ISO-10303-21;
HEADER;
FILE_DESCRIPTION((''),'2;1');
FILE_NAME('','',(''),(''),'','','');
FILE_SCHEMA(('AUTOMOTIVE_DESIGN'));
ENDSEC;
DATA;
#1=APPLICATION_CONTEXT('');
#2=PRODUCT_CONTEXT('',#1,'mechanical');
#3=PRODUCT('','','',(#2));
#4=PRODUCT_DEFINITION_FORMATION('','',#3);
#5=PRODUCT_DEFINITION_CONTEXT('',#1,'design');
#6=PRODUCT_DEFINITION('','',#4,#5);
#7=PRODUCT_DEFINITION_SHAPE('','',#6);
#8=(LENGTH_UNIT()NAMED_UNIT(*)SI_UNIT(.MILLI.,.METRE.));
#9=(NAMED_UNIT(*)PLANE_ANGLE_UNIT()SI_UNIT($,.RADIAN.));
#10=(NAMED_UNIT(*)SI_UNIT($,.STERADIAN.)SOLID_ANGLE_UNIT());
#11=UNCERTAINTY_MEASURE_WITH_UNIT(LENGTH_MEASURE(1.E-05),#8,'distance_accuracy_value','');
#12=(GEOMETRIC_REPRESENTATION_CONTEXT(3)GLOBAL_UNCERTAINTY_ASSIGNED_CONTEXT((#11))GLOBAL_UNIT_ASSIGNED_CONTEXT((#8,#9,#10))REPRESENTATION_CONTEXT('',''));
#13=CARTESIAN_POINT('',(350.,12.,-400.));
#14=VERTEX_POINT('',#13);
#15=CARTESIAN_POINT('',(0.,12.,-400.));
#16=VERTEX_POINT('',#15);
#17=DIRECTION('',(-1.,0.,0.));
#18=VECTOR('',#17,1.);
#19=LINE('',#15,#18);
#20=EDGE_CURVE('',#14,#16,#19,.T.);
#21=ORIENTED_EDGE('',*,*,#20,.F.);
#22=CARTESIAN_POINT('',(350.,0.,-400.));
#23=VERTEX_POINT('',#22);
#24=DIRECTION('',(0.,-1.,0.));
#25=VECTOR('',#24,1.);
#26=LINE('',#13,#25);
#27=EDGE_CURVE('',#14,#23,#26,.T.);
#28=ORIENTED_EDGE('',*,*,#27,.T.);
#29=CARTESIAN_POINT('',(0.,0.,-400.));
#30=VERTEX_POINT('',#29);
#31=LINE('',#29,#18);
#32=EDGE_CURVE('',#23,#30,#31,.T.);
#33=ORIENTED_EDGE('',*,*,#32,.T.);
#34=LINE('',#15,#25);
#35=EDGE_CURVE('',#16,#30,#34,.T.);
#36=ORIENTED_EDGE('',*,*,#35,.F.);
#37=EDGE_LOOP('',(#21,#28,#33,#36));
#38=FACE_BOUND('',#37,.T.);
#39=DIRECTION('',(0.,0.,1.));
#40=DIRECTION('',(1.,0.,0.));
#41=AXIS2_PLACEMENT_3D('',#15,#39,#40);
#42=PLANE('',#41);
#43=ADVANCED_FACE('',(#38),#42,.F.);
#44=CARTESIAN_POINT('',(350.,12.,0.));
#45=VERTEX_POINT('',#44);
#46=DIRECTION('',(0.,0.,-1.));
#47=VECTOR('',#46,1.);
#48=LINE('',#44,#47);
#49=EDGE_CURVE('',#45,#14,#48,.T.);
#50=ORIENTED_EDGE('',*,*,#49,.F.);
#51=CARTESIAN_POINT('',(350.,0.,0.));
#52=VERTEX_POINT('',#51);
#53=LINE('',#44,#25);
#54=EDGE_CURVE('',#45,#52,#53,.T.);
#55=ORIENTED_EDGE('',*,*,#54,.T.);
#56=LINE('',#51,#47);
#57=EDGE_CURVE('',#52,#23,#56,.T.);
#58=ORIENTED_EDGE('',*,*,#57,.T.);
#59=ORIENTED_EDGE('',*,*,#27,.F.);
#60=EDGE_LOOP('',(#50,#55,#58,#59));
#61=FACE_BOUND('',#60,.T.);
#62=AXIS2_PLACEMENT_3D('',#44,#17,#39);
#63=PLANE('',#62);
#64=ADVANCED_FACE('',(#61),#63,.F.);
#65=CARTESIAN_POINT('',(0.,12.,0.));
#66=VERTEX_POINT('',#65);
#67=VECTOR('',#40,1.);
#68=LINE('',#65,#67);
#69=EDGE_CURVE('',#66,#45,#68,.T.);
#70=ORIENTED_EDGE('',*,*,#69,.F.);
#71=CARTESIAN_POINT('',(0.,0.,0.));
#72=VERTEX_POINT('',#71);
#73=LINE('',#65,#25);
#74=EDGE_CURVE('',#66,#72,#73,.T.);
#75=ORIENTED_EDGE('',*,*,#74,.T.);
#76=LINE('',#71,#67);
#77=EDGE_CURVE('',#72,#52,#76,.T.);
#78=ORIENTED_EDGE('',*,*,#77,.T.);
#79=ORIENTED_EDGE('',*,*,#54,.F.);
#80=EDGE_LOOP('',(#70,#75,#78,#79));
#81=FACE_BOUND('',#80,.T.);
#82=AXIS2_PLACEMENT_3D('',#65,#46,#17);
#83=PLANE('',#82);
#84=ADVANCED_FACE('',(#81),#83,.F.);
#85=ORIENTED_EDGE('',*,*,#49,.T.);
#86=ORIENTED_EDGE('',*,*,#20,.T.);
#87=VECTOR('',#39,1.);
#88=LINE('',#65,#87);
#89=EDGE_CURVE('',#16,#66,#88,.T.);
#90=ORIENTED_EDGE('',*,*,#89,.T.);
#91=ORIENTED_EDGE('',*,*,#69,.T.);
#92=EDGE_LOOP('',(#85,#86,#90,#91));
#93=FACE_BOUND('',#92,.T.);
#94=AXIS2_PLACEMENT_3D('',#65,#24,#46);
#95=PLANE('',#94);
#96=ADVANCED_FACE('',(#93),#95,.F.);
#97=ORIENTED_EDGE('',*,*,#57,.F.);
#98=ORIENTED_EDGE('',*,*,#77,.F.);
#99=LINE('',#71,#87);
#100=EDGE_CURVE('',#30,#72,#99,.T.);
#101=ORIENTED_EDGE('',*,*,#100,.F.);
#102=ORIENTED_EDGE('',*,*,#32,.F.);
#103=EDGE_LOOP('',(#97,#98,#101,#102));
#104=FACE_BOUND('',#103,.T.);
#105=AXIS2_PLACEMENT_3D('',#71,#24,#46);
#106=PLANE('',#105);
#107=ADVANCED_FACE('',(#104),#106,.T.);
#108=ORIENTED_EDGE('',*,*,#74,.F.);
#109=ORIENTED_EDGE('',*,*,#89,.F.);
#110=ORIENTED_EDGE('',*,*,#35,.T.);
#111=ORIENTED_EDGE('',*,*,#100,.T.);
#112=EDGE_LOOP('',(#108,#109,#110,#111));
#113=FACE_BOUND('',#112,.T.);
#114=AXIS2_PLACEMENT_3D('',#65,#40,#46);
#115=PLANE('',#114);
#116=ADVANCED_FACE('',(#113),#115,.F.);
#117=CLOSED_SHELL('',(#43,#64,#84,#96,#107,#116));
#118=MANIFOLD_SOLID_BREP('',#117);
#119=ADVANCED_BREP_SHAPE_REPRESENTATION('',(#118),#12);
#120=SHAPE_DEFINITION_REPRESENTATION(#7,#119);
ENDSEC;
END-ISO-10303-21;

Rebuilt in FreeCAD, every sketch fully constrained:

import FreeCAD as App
import Part
import Sketcher
from FreeCAD import Vector

doc = App.newDocument("Part")
body = doc.addObject("PartDesign::Body", "Body")

# Sketch on XZ plane
sketch1 = doc.addObject("Sketcher::SketchObject", "Sketch")
body.addObject(sketch1)
sketch1.AttachmentSupport = (doc.XZ_Plane, [""])
sketch1.MapMode = "FlatFace"
sketch1.addGeometry([
    Part.LineSegment(Vector(0, -400, 0), Vector(0, 0, 0)),
    Part.LineSegment(Vector(0, 0, 0), Vector(350, 0, 0)),
    Part.LineSegment(Vector(350, 0, 0), Vector(350, -400, 0)),
    Part.LineSegment(Vector(350, -400, 0), Vector(0, -400, 0)),
], False)
sketch1.addConstraint([
    Sketcher.Constraint("Coincident", 0, 2, 1, 1),
    Sketcher.Constraint("Coincident", 1, 2, 2, 1),
    Sketcher.Constraint("Coincident", 2, 2, 3, 1),
    Sketcher.Constraint("Coincident", 3, 2, 0, 1),
    Sketcher.Constraint("Vertical", 0),
    Sketcher.Constraint("Horizontal", 1),
    Sketcher.Constraint("Vertical", 2),
    Sketcher.Constraint("Horizontal", 3),
    Sketcher.Constraint("Coincident", 0, 2, -1, 1),
    Sketcher.Constraint("DistanceX", 1, 1, 1, 2, 350.0),
    Sketcher.Constraint("DistanceY", 0, 1, 0, 2, 400.0),
])
pad1 = doc.addObject("PartDesign::Pad", "Pad")
body.addObject(pad1)
pad1.Profile = sketch1
pad1.Length = 12
pad1.Reversed = True

doc.recompute()
